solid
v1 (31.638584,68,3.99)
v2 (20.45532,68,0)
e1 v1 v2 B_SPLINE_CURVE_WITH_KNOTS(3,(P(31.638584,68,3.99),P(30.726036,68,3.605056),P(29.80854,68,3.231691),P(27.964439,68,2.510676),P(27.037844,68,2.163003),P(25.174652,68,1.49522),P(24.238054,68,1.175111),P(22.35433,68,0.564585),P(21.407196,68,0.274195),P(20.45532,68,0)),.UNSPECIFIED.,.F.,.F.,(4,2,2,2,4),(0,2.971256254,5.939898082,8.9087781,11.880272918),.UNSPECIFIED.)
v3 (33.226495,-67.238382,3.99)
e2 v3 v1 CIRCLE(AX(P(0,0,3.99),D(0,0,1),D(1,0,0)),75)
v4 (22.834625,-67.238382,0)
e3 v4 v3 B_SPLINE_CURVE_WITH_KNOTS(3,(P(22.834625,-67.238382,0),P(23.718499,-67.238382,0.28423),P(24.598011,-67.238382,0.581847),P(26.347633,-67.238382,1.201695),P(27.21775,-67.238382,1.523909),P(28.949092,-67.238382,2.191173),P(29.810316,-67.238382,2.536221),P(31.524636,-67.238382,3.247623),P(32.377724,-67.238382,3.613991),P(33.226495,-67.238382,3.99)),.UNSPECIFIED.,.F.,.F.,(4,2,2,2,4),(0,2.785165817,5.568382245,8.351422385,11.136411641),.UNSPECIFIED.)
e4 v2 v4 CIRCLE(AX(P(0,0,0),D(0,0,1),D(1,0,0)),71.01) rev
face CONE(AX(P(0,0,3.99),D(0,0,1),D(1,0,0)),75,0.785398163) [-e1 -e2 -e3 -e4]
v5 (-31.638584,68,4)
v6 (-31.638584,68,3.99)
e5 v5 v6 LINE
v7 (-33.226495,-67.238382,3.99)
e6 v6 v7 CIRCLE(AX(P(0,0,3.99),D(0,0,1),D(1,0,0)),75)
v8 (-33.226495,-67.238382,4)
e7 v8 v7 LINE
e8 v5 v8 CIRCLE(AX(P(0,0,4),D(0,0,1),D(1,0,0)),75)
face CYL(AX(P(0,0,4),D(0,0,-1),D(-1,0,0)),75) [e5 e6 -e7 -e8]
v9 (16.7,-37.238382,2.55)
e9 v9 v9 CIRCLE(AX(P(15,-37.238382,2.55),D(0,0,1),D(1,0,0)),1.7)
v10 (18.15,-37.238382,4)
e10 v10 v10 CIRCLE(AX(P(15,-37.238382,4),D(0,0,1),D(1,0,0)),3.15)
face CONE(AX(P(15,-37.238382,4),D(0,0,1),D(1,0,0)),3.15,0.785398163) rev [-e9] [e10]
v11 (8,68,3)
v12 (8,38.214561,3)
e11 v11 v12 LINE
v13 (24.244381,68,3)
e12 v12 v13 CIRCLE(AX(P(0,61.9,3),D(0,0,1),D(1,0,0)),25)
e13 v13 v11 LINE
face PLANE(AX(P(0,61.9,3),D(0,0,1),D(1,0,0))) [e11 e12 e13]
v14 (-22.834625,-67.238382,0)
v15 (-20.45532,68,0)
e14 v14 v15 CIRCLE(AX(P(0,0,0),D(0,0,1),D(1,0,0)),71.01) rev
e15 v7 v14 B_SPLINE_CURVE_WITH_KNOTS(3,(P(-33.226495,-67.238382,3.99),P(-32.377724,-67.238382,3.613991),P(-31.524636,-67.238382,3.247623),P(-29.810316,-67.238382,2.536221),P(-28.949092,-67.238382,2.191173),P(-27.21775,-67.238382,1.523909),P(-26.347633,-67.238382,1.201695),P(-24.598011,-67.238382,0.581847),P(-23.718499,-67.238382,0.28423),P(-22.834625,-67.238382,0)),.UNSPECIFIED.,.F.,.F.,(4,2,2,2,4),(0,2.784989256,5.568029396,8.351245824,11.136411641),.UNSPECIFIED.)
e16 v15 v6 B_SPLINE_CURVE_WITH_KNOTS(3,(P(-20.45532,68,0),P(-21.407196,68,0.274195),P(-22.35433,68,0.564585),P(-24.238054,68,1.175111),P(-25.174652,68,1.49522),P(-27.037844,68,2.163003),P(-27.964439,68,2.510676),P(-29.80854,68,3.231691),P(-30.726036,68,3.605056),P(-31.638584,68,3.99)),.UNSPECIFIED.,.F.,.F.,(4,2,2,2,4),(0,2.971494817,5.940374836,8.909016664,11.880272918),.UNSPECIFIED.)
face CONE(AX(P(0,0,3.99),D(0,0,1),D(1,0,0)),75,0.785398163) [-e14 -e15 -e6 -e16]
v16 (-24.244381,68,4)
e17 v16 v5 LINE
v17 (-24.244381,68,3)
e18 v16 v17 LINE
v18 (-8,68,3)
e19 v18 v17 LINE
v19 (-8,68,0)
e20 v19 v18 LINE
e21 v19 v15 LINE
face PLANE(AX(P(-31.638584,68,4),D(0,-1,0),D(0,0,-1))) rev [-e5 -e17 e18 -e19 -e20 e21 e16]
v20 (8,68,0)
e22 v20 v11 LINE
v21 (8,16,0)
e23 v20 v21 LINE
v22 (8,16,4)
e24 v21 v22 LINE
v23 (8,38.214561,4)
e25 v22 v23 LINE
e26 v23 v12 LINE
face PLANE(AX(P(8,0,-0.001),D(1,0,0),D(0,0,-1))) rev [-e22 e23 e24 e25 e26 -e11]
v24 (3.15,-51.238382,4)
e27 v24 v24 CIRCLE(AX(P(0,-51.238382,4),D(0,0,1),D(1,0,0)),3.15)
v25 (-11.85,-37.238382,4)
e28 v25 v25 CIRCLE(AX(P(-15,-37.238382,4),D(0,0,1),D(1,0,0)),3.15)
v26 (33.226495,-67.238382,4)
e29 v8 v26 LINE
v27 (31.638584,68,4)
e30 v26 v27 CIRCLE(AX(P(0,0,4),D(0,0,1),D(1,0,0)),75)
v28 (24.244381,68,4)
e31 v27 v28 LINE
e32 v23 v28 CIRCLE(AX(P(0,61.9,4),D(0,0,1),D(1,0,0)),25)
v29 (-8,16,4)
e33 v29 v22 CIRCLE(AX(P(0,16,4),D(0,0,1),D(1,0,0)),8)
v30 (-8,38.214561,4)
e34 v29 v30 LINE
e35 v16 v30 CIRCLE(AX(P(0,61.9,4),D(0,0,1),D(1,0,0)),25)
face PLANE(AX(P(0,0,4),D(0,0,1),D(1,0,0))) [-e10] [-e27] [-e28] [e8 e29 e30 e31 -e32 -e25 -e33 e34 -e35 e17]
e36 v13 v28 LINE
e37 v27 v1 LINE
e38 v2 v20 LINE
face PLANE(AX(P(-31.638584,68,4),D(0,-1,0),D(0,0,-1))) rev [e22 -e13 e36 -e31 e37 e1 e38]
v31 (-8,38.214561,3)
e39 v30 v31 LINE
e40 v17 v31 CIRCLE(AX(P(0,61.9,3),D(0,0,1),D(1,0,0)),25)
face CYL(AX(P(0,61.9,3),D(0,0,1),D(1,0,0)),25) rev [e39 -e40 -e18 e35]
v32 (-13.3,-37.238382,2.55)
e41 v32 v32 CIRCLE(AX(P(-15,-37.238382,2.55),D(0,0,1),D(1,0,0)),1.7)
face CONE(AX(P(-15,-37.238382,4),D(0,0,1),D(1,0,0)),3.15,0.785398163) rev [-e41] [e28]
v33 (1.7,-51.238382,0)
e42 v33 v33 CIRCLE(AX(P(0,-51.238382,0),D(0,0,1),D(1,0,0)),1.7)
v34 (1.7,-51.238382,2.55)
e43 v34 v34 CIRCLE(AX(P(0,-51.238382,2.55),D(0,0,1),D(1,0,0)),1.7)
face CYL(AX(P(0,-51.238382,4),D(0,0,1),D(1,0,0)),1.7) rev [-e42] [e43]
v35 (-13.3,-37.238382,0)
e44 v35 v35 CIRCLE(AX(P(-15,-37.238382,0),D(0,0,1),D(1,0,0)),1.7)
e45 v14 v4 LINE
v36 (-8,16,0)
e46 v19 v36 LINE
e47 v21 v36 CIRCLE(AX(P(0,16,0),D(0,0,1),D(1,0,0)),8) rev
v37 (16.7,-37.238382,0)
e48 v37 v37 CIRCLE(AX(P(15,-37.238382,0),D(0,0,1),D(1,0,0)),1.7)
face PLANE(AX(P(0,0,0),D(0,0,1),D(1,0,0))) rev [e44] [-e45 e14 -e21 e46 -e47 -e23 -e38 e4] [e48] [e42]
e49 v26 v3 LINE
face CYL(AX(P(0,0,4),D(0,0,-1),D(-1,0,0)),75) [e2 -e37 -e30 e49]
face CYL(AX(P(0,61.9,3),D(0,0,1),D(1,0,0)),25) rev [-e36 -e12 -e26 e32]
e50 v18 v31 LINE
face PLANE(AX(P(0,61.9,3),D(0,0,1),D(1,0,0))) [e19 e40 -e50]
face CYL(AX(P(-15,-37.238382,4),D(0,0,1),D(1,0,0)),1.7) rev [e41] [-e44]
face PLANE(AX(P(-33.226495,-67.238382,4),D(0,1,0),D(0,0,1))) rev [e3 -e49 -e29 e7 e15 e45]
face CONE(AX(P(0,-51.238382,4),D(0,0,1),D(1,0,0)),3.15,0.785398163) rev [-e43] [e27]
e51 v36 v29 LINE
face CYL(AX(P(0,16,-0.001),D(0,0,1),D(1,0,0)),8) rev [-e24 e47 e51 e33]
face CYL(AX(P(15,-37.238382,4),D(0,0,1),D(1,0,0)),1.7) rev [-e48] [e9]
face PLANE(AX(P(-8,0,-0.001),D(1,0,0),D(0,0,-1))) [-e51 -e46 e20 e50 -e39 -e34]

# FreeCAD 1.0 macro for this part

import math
import FreeCAD as App
import Part
import Sketcher
Q = App.Units.Quantity


def edges_at(feature, points):
    """Names of the edges that pass closest to the given points."""
    edges = feature.Shape.Edges
    near = lambda p: min(range(len(edges)), key=lambda i: edges[i].distToShape(Part.Vertex(*p))[0])
    return sorted({f"Edge{near(p) + 1}" for p in points})

doc = App.newDocument("Part")
body = doc.addObject("PartDesign::Body", "Body")

# Sketch on XY plane
sketch1 = body.newObject("Sketcher::SketchObject", "Sketch")
sketch1.AttachmentSupport = (doc.getObject("XY_Plane"), [""])
sketch1.MapMode = "FlatFace"
sketch1.addGeometry([
    Part.LineSegment(App.Vector(-33, -67, 0), App.Vector(33, -67, 0)),
    Part.ArcOfCircle(Part.Circle(App.Vector(0, 0, 0), App.Vector(0, 0, 1), 75), math.radians(-64), math.radians(65)),
    Part.LineSegment(App.Vector(32, 68, 0), App.Vector(-32, 68, 0)),
    Part.ArcOfCircle(Part.Circle(App.Vector(0, 0, 0), App.Vector(0, 0, 1), 75), math.radians(115), math.radians(244)),
], False)
sketch1.addConstraint([
    Sketcher.Constraint("Coincident", 0, 2, 1, 1),
    Sketcher.Constraint("Coincident", 1, 2, 2, 1),
    Sketcher.Constraint("Coincident", 2, 2, 3, 1),
    Sketcher.Constraint("Coincident", 3, 2, 0, 1),
    Sketcher.Constraint("Horizontal", 0),
    Sketcher.Constraint("Horizontal", 2),
    Sketcher.Constraint("Coincident", 1, 3, -1, 1),
    Sketcher.Constraint("Coincident", 3, 3, -1, 1),
    Sketcher.Constraint("Equal", 1, 3),
    Sketcher.Constraint("Radius", 1, Q("75 mm")),
    Sketcher.Constraint("DistanceY", -1, 1, 1, 2, Q("68 mm")),
    Sketcher.Constraint("DistanceX", 0, 1, 0, 2, Q("66.452991 mm")),
])
pad1 = body.newObject("PartDesign::Pad", "Pad")
pad1.Profile = sketch1
pad1.Length = 4

# Sketch on XY plane
sketch2 = body.newObject("Sketcher::SketchObject", "Sketch001")
sketch2.AttachmentSupport = (doc.getObject("XY_Plane"), [""])
sketch2.MapMode = "FlatFace"
sketch2.AttachmentOffset = App.Placement(App.Vector(0, 0, 4), App.Rotation())
sketch2.addGeometry([
    Part.Circle(App.Vector(-15, -37.2, 0), App.Vector(0, 0, 1), 1.7),
    Part.Circle(App.Vector(0, -51.2, 0), App.Vector(0, 0, 1), 1.7),
    Part.Circle(App.Vector(15, -37.2, 0), App.Vector(0, 0, 1), 1.7),
], False)
sketch2.addConstraint([
    Sketcher.Constraint("Equal", 0, 1),
    Sketcher.Constraint("Equal", 1, 2),
    Sketcher.Constraint("Symmetric", 0, 3, 2, 3, -2),
    Sketcher.Constraint("PointOnObject", 1, 3, -2),
    Sketcher.Constraint("Diameter", 0, Q("3.4 mm")),
    Sketcher.Constraint("DistanceX", 0, 3, -1, 1, Q("15 mm")),
    Sketcher.Constraint("DistanceY", 1, 3, 0, 3, Q("14 mm")),
    Sketcher.Constraint("DistanceY", 0, 3, -1, 1, Q("37.238382 mm")),
])
doc.recompute()
hole = body.newObject("PartDesign::Hole", "Hole")
hole.Profile = sketch2
hole.ThreadType = "None"
hole.Diameter = 3.4
hole.DepthType = "ThroughAll"
hole.HoleCutType = "Countersink"
hole.HoleCutDiameter = 6.3
hole.HoleCutCountersinkAngle = 90

# Sketch on XY plane
sketch3 = body.newObject("Sketcher::SketchObject", "Sketch002")
sketch3.AttachmentSupport = (doc.getObject("XY_Plane"), [""])
sketch3.MapMode = "FlatFace"
sketch3.AttachmentOffset = App.Placement(App.Vector(0, 0, 4), App.Rotation())
sketch3.addGeometry([
    Part.LineSegment(App.Vector(-8, 68, 0), App.Vector(-8, 16, 0)),
    Part.ArcOfCircle(Part.Circle(App.Vector(0, 16, 0), App.Vector(0, 0, 1), 8), math.radians(180), math.radians(360)),
    Part.LineSegment(App.Vector(8, 16, 0), App.Vector(8, 68, 0)),
    Part.LineSegment(App.Vector(8, 68, 0), App.Vector(-8, 68, 0)),
], False)
sketch3.addConstraint([
    Sketcher.Constraint("Tangent", 0, 2, 1, 1),
    Sketcher.Constraint("Tangent", 1, 2, 2, 1),
    Sketcher.Constraint("Coincident", 2, 2, 3, 1),
    Sketcher.Constraint("Coincident", 3, 2, 0, 1),
    Sketcher.Constraint("Vertical", 0),
    Sketcher.Constraint("Vertical", 2),
    Sketcher.Constraint("Horizontal", 3),
    Sketcher.Constraint("PointOnObject", 1, 3, -2),
    Sketcher.Constraint("Radius", 1, Q("8 mm")),
    Sketcher.Constraint("DistanceY", 0, 2, 0, 1, Q("52 mm")),
    Sketcher.Constraint("DistanceY", -1, 1, 1, 3, Q("16 mm")),
])
pocket1 = body.newObject("PartDesign::Pocket", "Pocket")
pocket1.Profile = sketch3
pocket1.Type = "UpToFirst"

# Sketch on XY plane
sketch4 = body.newObject("Sketcher::SketchObject", "Sketch003")
sketch4.AttachmentSupport = (doc.getObject("XY_Plane"), [""])
sketch4.MapMode = "FlatFace"
sketch4.AttachmentOffset = App.Placement(App.Vector(0, 0, 4), App.Rotation())
sketch4.addGeometry(Part.Circle(App.Vector(0, 62, 0), App.Vector(0, 0, 1), 25), False)
sketch4.addConstraint([
    Sketcher.Constraint("PointOnObject", 0, 3, -2),
    Sketcher.Constraint("Diameter", 0, Q("50 mm")),
    Sketcher.Constraint("DistanceY", -1, 1, 0, 3, Q("61.9 mm")),
])
pocket2 = body.newObject("PartDesign::Pocket", "Pocket001")
pocket2.Profile = sketch4
pocket2.Length = 1
doc.recompute()

chamfer = body.newObject("PartDesign::Chamfer", "Chamfer")
chamfer.Base = (pocket2, edges_at(pocket2, [(74.995, 0.881, 0), (-74.995, 0.881, 0)]))
chamfer.Size = 3.99

doc.recompute()
